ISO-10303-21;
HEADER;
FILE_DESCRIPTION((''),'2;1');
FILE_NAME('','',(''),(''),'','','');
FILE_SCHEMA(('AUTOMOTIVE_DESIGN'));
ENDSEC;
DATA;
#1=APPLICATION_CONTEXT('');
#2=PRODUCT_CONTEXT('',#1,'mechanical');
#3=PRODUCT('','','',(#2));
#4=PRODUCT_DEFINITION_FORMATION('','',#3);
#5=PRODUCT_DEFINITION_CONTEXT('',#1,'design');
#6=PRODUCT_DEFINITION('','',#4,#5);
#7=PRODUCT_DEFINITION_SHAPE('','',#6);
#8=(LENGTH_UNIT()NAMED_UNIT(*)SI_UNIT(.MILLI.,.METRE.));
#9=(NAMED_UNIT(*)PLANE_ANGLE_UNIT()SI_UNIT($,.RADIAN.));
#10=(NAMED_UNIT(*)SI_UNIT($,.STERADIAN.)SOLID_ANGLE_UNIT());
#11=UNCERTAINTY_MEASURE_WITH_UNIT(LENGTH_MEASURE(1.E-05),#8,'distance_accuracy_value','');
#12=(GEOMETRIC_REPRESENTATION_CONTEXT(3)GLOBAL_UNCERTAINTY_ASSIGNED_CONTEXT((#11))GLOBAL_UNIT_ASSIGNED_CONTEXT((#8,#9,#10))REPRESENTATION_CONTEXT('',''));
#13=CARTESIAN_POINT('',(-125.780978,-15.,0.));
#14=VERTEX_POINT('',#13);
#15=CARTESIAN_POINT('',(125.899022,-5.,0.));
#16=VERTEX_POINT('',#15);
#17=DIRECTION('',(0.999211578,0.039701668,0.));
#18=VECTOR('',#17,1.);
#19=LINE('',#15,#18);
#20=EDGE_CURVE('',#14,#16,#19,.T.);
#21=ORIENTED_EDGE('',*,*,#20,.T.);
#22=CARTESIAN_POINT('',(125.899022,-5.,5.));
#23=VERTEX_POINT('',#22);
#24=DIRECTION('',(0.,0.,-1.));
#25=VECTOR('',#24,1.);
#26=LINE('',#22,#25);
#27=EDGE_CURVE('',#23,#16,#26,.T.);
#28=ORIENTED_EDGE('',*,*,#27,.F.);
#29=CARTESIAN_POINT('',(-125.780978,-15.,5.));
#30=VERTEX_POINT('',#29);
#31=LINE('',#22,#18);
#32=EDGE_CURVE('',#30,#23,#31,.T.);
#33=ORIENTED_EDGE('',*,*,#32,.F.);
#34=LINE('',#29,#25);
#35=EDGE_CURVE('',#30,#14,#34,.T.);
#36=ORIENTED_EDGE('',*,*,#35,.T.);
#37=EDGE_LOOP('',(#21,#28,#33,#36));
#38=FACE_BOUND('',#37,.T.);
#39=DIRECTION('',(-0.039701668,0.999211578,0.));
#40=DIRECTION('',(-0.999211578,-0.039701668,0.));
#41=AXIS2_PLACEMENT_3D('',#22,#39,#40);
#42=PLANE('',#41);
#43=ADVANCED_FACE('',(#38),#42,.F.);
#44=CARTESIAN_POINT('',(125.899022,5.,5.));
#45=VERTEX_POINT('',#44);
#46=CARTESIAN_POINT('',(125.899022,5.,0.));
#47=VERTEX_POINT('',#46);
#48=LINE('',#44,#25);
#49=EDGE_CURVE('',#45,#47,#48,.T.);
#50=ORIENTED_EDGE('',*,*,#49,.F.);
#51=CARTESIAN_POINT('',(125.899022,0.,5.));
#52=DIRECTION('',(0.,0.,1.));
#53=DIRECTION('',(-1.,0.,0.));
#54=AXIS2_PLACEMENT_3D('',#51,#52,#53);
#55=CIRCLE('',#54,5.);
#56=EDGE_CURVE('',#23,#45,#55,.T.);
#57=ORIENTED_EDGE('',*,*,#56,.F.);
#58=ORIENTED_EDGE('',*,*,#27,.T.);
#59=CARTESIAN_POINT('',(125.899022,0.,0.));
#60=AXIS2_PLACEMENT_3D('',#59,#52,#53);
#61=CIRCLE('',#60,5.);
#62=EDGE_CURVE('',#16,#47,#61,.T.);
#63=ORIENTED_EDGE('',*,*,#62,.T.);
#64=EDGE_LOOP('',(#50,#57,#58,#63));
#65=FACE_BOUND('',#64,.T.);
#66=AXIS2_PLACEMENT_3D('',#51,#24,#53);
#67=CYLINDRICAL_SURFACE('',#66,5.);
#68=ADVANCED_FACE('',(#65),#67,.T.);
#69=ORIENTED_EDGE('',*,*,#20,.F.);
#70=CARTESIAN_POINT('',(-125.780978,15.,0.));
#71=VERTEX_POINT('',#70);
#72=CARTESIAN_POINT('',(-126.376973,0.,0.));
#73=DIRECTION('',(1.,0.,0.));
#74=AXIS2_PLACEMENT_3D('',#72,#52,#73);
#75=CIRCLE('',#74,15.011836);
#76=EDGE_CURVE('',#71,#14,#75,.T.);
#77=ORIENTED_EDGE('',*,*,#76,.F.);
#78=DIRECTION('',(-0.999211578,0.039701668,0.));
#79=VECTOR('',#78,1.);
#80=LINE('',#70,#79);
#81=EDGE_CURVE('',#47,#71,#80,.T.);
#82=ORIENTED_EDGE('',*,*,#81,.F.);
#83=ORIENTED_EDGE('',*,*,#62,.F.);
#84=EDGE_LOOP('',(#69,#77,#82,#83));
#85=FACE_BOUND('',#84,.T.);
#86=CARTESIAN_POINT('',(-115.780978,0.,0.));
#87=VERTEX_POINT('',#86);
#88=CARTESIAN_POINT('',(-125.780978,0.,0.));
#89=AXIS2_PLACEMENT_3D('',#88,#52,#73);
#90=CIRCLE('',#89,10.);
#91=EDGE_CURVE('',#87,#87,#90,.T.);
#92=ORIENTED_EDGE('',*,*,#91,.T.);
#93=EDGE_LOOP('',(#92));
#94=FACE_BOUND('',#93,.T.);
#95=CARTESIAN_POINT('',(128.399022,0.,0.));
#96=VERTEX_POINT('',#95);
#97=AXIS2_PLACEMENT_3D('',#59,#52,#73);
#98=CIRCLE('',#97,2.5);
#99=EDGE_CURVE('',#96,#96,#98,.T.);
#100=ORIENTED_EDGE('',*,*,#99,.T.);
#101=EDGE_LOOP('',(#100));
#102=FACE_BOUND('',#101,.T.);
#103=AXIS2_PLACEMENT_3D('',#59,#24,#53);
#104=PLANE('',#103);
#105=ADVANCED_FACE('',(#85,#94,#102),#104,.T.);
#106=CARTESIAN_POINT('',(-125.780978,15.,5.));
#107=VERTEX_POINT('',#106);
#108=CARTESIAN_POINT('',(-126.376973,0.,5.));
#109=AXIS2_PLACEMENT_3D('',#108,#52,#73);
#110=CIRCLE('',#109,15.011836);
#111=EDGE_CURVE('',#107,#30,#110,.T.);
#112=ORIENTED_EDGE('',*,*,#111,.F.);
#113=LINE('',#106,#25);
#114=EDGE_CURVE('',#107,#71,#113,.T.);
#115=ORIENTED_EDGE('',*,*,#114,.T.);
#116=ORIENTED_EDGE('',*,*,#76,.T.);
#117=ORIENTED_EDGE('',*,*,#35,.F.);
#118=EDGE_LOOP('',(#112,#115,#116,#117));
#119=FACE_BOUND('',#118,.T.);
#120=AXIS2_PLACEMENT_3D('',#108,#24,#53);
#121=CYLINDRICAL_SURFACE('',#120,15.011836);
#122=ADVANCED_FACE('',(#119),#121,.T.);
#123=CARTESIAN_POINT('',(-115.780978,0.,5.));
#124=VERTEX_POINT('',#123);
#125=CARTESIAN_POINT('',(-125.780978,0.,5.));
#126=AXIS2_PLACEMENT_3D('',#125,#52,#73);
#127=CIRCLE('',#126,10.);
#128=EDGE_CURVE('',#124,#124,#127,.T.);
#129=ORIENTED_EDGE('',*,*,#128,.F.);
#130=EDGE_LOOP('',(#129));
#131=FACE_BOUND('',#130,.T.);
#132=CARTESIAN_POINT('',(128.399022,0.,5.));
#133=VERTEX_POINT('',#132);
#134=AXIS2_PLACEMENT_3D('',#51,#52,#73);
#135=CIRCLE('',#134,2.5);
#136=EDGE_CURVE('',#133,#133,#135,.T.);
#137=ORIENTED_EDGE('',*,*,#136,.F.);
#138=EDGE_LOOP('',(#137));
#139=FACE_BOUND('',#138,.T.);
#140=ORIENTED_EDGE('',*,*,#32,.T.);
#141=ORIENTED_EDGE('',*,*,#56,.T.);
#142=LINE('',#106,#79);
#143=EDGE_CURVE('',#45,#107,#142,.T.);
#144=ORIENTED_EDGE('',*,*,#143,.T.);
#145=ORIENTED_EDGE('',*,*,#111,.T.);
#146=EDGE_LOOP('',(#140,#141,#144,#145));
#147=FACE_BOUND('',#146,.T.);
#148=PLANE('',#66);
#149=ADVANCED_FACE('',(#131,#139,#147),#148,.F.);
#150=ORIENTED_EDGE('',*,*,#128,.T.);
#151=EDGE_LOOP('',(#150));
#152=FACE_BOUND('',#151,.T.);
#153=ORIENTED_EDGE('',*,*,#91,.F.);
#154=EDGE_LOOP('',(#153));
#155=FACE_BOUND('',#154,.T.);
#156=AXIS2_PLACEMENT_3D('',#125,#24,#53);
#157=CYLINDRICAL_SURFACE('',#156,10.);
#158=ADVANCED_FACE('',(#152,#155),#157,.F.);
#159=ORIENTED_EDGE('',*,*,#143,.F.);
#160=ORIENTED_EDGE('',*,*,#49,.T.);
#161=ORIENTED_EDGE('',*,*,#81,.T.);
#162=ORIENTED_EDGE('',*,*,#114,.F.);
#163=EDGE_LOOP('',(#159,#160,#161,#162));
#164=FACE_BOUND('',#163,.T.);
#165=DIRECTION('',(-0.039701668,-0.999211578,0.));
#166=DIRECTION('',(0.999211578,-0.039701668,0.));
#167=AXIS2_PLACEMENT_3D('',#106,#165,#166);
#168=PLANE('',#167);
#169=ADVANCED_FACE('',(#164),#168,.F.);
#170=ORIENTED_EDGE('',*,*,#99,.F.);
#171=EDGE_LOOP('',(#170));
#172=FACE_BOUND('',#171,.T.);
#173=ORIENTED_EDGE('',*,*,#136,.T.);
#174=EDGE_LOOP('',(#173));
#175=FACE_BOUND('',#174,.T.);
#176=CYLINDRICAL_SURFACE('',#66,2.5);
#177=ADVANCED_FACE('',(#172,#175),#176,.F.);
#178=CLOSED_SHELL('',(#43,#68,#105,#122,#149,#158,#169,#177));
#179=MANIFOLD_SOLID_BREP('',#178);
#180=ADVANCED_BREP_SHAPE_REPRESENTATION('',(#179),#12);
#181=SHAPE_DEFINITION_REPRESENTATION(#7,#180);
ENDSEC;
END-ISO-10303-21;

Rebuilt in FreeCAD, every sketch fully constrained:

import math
import FreeCAD as App
import Part
import Sketcher
from FreeCAD import Vector

doc = App.newDocument("Part")
body = doc.addObject("PartDesign::Body", "Body")

# Sketch on XY plane
sketch1 = doc.addObject("Sketcher::SketchObject", "Sketch")
body.addObject(sketch1)
sketch1.AttachmentSupport = (doc.XY_Plane, [""])
sketch1.MapMode = "FlatFace"
sketch1.addGeometry([
    Part.LineSegment(Vector(125.9, 5, 0), Vector(-125.8, 15, 0)),  # 0
    Part.ArcOfCircle(Part.Circle(Vector(-126.4, 0, 0), Vector(0, 0, 1), 15), math.radians(88), math.radians(272)),  # 1
    Part.LineSegment(Vector(-125.8, -15, 0), Vector(125.9, -5, 0)),  # 2
    Part.ArcOfCircle(Part.Circle(Vector(125.9, 0, 0), Vector(0, 0, 1), 5), math.radians(-90), math.radians(90)),  # 3
    Part.Circle(Vector(125.9, 0, 0), Vector(0, 0, 1), 2.5),  # 4
    Part.Circle(Vector(-125.8, 0, 0), Vector(0, 0, 1), 10),  # 5
], False)
sketch1.addConstraint([
    Sketcher.Constraint("Tangent", 0, 2, 1, 1),
    Sketcher.Constraint("Tangent", 1, 2, 2, 1),
    Sketcher.Constraint("Coincident", 2, 2, 3, 1),
    Sketcher.Constraint("Coincident", 3, 2, 0, 1),
    Sketcher.Constraint("Coincident", 4, 3, 3, 3),
    Sketcher.Constraint("Symmetric", 0, 2, 1, 2, -1),
    Sketcher.Constraint("PointOnObject", 3, 3, -1),
    Sketcher.Constraint("PointOnObject", 5, 3, -1),
    Sketcher.Constraint("Vertical", 5, 3, 0, 2),
    Sketcher.Constraint("Vertical", 4, 3, 2, 2),
    Sketcher.Constraint("Diameter", 4, 5.0),
    Sketcher.Constraint("Diameter", 5, 20.0),
    Sketcher.Constraint("Radius", 3, 5.0),
    Sketcher.Constraint("DistanceY", -1, 1, 0, 2, 15.0),
    Sketcher.Constraint("DistanceX", 5, 3, 3, 3, 251.68),
    Sketcher.Constraint("DistanceX", 1, 3, -1, 1, 126.376973),
])
pad1 = doc.addObject("PartDesign::Pad", "Pad")
body.addObject(pad1)
pad1.Profile = sketch1
pad1.Length = 5

doc.recompute()
